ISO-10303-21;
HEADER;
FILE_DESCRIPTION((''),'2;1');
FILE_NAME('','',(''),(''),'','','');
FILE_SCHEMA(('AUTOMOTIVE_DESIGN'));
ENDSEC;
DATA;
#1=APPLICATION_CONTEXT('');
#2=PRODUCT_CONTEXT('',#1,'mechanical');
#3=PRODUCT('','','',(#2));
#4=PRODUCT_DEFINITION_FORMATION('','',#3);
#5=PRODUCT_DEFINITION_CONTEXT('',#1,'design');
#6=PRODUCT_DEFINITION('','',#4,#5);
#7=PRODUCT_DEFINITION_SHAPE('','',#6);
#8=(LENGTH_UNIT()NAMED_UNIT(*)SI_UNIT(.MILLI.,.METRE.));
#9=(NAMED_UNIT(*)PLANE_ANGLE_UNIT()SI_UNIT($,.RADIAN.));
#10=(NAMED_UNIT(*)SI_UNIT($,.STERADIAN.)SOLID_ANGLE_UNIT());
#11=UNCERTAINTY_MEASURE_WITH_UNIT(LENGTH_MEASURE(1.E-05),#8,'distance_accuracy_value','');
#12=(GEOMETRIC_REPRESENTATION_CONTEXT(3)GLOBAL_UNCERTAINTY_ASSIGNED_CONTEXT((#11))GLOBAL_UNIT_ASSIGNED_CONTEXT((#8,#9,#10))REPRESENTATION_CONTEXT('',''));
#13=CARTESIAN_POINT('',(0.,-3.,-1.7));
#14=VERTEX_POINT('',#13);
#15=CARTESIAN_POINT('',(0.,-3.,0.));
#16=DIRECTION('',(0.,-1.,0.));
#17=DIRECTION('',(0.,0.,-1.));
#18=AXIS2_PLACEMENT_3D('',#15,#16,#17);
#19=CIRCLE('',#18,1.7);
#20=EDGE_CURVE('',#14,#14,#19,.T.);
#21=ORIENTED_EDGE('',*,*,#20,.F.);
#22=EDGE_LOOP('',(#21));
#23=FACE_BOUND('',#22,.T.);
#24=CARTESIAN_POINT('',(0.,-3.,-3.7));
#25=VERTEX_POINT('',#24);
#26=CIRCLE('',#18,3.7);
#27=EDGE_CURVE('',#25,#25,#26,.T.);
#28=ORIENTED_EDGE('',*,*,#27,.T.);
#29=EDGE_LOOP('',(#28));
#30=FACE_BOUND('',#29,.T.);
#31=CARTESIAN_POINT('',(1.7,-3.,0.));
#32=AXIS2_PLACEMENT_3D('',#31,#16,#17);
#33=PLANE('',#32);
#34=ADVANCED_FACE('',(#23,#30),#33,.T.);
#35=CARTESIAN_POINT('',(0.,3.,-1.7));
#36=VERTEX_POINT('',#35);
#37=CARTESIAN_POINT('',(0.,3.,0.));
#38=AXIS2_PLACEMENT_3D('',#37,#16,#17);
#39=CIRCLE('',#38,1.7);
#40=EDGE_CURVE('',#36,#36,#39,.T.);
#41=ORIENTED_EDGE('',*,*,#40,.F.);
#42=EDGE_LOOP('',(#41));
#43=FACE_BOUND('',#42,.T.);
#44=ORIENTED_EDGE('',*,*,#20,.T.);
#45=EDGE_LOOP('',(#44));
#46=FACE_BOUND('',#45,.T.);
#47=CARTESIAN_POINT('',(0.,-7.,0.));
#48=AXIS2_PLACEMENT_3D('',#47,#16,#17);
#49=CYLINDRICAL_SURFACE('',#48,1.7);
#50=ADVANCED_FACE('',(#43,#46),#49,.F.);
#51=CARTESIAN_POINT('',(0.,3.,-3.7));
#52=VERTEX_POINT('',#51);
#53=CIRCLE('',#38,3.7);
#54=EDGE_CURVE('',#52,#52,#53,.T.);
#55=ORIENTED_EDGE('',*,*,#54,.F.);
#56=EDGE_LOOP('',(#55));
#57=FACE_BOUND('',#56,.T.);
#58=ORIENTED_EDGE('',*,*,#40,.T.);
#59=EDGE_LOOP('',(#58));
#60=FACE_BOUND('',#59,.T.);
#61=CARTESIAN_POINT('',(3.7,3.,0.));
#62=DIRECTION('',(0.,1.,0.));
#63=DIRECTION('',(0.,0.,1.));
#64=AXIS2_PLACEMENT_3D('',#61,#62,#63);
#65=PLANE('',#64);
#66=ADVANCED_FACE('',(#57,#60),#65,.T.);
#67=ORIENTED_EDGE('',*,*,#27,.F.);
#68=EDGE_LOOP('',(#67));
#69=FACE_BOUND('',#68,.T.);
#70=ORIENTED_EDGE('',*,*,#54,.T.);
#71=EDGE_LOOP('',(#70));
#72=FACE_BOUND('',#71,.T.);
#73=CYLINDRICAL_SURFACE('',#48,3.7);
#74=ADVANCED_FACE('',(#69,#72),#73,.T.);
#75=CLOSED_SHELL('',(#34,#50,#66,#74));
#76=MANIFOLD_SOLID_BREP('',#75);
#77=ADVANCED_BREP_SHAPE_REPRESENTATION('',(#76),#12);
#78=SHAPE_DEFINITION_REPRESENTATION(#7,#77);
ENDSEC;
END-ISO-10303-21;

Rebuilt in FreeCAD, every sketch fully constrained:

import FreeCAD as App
import Part
import Sketcher
from FreeCAD import Vector
Q = App.Units.Quantity


def add_polygon(sketch, points):
    """Adds a closed chain of lines whose ends are joined by coincident constraints."""
    first, n = sketch.GeometryCount, len(points)
    for a, b in zip(points, points[1:] + points[:1]):
        sketch.addGeometry(Part.LineSegment(App.Vector(*a, 0), App.Vector(*b, 0)), False)
    for i in range(n):
        sketch.addConstraint(Sketcher.Constraint("Coincident", first + i, 2, first + (i + 1) % n, 1))

doc = App.newDocument("Part")
body = doc.addObject("PartDesign::Body", "Body")

# Sketch on XY plane
sketch1 = doc.addObject("Sketcher::SketchObject", "Sketch")
body.addObject(sketch1)
sketch1.AttachmentSupport = (doc.XY_Plane, [""])
sketch1.MapMode = "FlatFace"
add_polygon(sketch1, [(1.7, 3), (1.7, -3), (3.7, -3), (3.7, 3)])  # lines 0-3
sketch1.addConstraint([
    Sketcher.Constraint("Vertical", 0),
    Sketcher.Constraint("Horizontal", 1),
    Sketcher.Constraint("Vertical", 2),
    Sketcher.Constraint("Horizontal", 3),
    Sketcher.Constraint("DistanceX", 1, 1, 1, 2, Q("2 mm")),
    Sketcher.Constraint("DistanceY", 0, 2, 0, 1, Q("6 mm")),
    Sketcher.Constraint("DistanceY", 0, 2, -1, 1, Q("3 mm")),
    Sketcher.Constraint("DistanceX", -1, 1, 0, 2, Q("1.7 mm")),
])
revolution = doc.addObject("PartDesign::Revolution", "Revolution")
body.addObject(revolution)
revolution.Profile = sketch1
revolution.ReferenceAxis = (sketch1, ["V_Axis"])
revolution.Angle = 360

doc.recompute()
